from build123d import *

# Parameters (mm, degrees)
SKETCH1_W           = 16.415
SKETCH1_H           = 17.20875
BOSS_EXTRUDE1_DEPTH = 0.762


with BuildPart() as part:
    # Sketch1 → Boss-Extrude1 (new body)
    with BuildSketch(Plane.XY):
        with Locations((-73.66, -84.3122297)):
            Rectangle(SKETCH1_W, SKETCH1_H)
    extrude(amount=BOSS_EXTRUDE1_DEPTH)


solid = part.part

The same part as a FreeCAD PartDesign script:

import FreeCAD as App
import Part
import Sketcher
Q = App.Units.Quantity

doc = App.newDocument("Part")
params = doc.addObject("Spreadsheet::Sheet", "Params")
for row, (alias, value) in enumerate([
    ("pad1_length", "0.03 in"),
], start=1):
    params.set(f"A{row}", alias)
    params.set(f"B{row}", "=" + value)
    params.setAlias(f"B{row}", alias)

body = doc.addObject("PartDesign::Body", "Body")

# Sketch on XY plane
sketch1 = body.newObject("Sketcher::SketchObject", "Sketch")
sketch1.AttachmentSupport = (doc.getObject("XY_Plane"), [""])
sketch1.MapMode = "FlatFace"
sketch1.addGeometry(Part.LineSegment(App.Vector(-82, -76, 0), App.Vector(-82, -93, 0)), False)
sketch1.addGeometry(Part.LineSegment(App.Vector(-82, -93, 0), App.Vector(-65, -93, 0)), False)
sketch1.addGeometry(Part.LineSegment(App.Vector(-65, -93, 0), App.Vector(-65, -76, 0)), False)
sketch1.addGeometry(Part.LineSegment(App.Vector(-65, -76, 0), App.Vector(-82, -76, 0)), False)
sketch1.addConstraint(Sketcher.Constraint("Coincident", 0, 2, 1, 1))
sketch1.addConstraint(Sketcher.Constraint("Coincident", 1, 2, 2, 1))
sketch1.addConstraint(Sketcher.Constraint("Coincident", 2, 2, 3, 1))
sketch1.addConstraint(Sketcher.Constraint("Coincident", 3, 2, 0, 1))
sketch1.addConstraint(Sketcher.Constraint("Vertical", 0))
sketch1.addConstraint(Sketcher.Constraint("Horizontal", 1))
sketch1.addConstraint(Sketcher.Constraint("Vertical", 2))
sketch1.addConstraint(Sketcher.Constraint("Horizontal", 3))
sketch1.addConstraint(Sketcher.Constraint("DistanceX", 1, 1, 1, 2, Q("16.415 mm")))
sketch1.addConstraint(Sketcher.Constraint("DistanceY", 0, 2, 0, 1, Q("17.20875 mm")))
sketch1.addConstraint(Sketcher.Constraint("DistanceX", 0, 2, -1, 1, Q("81.8675 mm")))
sketch1.addConstraint(Sketcher.Constraint("DistanceY", 0, 2, -1, 1, Q("92.916605 mm")))
pad1 = body.newObject("PartDesign::Pad", "Pad")
pad1.Profile = sketch1
pad1.setExpression("Length", "Params.pad1_length")

doc.recompute()
